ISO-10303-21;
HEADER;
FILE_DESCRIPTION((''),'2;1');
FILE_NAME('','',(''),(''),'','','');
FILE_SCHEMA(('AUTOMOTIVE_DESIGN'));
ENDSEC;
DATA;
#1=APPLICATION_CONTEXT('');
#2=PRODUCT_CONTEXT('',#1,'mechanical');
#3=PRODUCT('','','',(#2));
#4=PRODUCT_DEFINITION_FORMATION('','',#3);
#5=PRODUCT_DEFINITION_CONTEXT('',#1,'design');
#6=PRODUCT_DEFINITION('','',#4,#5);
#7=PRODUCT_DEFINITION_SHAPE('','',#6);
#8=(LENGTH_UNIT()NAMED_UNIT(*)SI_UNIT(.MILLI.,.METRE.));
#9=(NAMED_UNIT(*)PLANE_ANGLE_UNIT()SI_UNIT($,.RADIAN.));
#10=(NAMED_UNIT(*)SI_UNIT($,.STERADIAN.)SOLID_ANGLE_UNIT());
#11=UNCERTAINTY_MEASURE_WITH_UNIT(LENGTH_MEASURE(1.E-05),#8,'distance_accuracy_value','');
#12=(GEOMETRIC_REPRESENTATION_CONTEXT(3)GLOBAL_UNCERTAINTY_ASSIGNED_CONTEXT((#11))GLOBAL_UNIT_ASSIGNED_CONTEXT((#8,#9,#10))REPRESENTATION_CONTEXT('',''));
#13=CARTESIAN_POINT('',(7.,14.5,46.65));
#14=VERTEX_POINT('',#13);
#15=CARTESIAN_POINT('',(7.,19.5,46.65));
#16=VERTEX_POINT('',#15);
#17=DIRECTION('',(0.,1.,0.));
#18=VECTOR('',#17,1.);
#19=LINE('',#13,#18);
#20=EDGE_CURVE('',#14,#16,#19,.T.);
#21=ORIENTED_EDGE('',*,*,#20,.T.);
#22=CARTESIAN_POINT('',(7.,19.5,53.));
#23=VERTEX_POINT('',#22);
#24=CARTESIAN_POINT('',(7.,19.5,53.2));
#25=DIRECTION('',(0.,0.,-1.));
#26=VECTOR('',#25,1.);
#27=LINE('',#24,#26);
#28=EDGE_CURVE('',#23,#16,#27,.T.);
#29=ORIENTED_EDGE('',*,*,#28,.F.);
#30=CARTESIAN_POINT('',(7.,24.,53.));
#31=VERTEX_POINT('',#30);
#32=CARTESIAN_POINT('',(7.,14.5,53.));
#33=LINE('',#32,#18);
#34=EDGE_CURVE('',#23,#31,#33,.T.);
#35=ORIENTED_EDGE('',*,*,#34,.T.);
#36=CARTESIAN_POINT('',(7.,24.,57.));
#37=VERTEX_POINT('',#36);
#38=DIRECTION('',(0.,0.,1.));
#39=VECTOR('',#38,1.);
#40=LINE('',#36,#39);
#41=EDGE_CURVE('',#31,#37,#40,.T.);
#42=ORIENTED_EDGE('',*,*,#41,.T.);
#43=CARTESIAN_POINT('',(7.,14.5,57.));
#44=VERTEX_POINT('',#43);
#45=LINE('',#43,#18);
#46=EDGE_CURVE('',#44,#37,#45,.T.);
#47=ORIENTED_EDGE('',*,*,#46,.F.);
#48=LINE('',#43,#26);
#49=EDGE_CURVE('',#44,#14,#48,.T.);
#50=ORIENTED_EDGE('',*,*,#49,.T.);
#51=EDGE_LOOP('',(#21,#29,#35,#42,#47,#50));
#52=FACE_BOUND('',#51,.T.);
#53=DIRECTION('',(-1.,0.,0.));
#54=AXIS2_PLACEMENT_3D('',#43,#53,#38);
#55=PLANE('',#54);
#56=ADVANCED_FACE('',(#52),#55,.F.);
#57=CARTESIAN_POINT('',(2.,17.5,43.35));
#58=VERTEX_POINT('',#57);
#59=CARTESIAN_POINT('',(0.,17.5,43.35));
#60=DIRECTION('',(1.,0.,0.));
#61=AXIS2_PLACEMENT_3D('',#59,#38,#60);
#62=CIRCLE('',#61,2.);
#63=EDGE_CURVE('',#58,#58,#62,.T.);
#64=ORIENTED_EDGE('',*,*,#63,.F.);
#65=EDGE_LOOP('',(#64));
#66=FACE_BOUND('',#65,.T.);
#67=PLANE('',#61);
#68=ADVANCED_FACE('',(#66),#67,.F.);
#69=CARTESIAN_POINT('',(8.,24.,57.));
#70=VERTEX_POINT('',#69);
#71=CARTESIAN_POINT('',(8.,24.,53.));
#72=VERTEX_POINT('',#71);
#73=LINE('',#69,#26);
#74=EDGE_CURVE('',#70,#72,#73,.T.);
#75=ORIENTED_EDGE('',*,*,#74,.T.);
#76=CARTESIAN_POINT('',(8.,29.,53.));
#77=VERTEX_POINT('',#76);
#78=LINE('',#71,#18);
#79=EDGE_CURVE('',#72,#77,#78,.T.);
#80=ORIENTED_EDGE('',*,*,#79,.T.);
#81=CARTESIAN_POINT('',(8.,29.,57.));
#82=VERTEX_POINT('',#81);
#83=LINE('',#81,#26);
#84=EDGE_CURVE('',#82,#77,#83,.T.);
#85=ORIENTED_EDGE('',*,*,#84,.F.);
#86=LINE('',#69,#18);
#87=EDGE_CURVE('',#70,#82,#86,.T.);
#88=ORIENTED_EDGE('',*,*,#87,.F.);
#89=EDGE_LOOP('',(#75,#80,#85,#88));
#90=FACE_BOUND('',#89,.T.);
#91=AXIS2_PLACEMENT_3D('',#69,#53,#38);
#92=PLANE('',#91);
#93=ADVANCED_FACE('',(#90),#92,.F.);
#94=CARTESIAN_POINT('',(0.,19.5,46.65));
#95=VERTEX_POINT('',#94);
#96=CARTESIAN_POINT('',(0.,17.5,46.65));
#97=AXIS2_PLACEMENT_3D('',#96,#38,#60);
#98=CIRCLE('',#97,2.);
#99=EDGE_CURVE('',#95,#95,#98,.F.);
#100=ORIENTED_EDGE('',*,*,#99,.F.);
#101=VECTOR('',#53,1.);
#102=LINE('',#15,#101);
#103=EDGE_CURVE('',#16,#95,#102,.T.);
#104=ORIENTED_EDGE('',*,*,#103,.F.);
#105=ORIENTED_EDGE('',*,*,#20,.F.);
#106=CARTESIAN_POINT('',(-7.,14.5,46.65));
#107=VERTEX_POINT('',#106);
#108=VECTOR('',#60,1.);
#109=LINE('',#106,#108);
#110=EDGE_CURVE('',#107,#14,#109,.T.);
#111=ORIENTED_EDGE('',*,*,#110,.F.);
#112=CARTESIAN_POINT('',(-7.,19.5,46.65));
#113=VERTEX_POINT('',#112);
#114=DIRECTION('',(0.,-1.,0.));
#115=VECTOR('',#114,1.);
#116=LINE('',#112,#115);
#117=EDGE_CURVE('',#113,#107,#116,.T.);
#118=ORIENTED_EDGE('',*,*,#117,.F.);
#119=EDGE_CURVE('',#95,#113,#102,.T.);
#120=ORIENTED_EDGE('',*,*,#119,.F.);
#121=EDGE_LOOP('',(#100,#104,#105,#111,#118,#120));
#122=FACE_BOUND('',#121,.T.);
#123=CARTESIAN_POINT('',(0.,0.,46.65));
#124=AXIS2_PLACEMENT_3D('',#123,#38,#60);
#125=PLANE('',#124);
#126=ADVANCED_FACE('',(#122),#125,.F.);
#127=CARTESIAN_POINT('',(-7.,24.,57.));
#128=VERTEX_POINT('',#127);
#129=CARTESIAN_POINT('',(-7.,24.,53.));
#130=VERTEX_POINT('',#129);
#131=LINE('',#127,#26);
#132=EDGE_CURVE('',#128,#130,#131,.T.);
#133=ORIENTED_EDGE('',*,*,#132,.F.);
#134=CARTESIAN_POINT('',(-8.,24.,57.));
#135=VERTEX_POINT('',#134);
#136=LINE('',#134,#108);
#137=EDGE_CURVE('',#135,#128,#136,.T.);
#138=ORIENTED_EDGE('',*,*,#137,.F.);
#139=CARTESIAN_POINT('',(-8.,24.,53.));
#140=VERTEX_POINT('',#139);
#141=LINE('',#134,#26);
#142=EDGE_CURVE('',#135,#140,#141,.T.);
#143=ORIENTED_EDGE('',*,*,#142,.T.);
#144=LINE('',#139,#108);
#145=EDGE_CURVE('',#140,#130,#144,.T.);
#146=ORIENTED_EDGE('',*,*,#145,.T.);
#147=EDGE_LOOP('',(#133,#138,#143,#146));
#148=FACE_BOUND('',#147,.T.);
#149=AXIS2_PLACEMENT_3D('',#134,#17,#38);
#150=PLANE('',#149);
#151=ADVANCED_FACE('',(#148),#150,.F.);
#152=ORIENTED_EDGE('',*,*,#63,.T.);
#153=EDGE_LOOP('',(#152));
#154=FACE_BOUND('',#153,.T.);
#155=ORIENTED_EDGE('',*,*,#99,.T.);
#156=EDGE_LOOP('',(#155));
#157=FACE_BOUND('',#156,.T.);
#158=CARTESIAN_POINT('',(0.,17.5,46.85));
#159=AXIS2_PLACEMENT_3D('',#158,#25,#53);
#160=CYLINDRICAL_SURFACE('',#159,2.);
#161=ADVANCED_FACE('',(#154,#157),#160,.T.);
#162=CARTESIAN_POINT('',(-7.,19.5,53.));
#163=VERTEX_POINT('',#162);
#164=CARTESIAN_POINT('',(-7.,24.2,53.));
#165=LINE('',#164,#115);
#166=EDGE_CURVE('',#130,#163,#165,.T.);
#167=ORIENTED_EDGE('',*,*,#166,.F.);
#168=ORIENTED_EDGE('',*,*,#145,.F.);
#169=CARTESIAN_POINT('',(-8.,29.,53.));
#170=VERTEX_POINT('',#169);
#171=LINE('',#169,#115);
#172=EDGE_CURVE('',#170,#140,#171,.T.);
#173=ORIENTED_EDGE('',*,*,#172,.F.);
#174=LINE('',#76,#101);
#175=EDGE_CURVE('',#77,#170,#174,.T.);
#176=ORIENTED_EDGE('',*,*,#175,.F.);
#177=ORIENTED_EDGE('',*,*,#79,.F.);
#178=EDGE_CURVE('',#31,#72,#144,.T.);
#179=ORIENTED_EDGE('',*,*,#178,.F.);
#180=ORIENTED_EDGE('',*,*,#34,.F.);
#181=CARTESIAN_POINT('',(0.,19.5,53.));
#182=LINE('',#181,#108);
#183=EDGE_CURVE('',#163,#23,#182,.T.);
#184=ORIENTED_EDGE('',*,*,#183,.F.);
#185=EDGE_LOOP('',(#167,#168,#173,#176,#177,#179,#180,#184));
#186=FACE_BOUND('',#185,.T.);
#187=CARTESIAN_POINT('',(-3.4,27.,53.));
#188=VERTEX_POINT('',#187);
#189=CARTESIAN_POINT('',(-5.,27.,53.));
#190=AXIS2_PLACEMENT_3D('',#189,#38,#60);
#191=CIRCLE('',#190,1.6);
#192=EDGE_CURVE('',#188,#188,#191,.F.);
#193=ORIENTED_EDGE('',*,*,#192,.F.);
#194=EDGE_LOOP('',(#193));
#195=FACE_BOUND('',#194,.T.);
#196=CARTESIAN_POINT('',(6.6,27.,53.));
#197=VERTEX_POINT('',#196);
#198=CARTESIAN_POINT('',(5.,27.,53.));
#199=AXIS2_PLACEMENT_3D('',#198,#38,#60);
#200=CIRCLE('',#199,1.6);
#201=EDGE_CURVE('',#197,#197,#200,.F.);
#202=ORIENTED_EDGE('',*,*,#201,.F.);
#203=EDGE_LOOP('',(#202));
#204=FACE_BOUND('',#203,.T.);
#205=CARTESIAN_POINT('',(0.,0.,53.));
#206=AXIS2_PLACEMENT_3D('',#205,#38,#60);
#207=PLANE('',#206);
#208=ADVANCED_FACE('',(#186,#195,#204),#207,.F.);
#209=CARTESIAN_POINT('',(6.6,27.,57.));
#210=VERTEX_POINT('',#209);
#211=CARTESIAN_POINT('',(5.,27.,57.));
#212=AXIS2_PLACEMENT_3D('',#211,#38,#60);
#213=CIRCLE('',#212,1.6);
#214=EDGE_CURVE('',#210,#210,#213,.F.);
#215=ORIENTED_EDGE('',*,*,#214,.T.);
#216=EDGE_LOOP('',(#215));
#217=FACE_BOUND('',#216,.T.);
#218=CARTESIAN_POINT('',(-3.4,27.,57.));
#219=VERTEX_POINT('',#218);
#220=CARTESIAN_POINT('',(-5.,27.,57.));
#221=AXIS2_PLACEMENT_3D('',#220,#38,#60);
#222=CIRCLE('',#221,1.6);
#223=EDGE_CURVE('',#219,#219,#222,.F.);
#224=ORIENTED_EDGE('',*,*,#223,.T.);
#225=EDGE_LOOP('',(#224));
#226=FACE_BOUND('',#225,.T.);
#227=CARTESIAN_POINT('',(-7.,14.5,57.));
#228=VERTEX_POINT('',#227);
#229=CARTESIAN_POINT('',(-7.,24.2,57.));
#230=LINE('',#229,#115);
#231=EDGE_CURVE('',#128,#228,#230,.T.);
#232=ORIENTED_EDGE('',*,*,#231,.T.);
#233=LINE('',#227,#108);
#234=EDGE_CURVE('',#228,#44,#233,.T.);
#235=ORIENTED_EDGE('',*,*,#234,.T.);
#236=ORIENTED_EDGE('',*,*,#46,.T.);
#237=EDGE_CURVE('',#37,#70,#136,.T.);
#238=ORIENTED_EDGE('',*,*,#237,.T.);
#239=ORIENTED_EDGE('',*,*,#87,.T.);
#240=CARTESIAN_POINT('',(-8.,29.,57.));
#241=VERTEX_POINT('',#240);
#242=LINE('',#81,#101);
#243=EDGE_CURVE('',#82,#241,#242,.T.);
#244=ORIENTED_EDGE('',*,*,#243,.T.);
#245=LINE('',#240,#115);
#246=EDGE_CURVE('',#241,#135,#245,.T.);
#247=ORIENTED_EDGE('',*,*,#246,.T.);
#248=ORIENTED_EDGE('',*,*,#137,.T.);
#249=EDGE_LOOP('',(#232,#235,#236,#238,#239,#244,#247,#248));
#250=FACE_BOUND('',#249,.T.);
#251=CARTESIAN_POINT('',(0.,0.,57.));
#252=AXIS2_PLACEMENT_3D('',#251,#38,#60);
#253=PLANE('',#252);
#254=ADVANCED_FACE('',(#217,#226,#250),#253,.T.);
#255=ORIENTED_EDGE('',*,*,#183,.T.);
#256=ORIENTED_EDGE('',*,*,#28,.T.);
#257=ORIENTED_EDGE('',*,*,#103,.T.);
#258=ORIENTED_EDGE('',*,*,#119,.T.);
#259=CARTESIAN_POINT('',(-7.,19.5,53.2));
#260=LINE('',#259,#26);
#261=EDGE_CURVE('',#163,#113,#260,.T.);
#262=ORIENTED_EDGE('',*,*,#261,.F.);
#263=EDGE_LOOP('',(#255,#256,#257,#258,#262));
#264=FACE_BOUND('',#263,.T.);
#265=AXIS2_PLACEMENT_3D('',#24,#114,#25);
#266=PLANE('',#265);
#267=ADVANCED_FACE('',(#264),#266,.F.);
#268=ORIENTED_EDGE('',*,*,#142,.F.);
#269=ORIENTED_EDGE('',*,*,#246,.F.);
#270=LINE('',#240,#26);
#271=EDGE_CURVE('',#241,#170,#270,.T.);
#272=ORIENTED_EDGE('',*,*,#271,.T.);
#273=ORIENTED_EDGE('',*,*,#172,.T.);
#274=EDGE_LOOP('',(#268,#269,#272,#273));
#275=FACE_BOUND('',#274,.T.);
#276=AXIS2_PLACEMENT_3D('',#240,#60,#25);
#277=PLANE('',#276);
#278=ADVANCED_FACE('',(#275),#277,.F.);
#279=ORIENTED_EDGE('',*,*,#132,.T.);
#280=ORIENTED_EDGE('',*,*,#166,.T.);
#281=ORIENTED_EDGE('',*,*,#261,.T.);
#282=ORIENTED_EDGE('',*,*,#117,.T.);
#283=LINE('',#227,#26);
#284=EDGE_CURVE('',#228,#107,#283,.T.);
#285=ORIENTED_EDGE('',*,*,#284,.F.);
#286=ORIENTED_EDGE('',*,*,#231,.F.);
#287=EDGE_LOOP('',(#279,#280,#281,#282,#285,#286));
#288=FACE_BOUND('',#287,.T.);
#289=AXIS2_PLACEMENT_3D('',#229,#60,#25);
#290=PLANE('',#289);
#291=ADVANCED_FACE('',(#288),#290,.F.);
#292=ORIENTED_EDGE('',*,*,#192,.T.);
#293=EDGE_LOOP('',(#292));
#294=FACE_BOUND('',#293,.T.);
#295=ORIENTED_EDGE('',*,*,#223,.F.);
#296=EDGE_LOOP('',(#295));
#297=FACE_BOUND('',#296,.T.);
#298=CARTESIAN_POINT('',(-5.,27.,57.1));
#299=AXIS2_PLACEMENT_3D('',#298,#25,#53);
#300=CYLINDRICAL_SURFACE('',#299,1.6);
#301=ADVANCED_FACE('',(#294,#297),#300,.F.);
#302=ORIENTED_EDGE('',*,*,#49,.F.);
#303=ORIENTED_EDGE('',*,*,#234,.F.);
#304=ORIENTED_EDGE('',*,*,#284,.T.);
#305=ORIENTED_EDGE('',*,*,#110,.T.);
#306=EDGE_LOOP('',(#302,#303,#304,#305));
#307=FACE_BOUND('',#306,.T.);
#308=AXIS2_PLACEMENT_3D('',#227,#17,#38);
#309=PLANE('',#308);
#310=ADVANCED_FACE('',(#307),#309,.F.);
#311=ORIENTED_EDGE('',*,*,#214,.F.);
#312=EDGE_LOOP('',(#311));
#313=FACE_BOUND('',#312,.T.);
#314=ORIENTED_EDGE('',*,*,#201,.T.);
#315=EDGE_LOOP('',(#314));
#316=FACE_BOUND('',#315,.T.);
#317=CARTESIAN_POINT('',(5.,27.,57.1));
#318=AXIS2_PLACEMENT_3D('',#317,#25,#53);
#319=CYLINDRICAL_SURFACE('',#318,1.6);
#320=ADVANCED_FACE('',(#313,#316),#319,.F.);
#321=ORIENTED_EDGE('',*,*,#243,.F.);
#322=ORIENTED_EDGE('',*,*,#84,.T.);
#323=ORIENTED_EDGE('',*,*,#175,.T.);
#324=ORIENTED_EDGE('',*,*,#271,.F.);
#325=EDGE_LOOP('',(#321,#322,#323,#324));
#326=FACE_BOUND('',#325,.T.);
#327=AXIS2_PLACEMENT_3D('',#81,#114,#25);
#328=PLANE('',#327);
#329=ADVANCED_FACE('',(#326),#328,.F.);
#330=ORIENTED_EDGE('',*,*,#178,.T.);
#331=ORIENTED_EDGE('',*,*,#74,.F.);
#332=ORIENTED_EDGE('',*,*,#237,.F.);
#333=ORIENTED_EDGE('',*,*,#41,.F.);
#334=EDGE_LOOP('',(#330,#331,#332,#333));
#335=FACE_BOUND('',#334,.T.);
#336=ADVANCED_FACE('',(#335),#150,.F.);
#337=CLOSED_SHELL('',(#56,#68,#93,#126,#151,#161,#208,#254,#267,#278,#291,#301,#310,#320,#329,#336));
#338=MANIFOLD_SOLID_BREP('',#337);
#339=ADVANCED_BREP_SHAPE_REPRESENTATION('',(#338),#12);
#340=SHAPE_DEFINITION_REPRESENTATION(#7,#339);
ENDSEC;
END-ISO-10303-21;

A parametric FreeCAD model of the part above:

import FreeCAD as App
import Part
import Sketcher

V = App.Vector
Q = App.Units.Quantity

doc = App.newDocument("Part")
params = doc.addObject("Spreadsheet::Sheet", "Params")
for row, (alias, value) in enumerate([
    ("sketch1_width", "16 mm"),
    ("sketch1_height", "5 mm"),
    ("pad1_length", "4 mm"),
    ("sketch2_width", "14 mm"),
    ("sketch2_height", "9.7 mm"),
    ("pad2_length", "4 mm"),
    ("sketch3_width", "14 mm"),
    ("sketch3_height", "5 mm"),
    ("pad3_length", "6.55 mm"),
    ("sketch4_diameter", "4 mm"),
    ("pad4_length", "3.5 mm"),
    ("sketch5_diameter", "3.2 mm"),
    ("pocket1_length", "4.2 mm"),
], start=1):
    params.set(f"A{row}", alias)
    params.set(f"B{row}", "=" + value)
    params.setAlias(f"B{row}", alias)

body = doc.addObject("PartDesign::Body", "Body")

# Sketch on XY plane
sketch1 = body.newObject("Sketcher::SketchObject", "Sketch")
sketch1.AttachmentSupport = (doc.getObject("XY_Plane"), [""])
sketch1.MapMode = "FlatFace"
sketch1.AttachmentOffset = App.Placement(V(0, 0, 53), App.Rotation())
sketch1.addGeometry([
    Part.LineSegment(V(-8, 29, 0), V(-8, 24, 0)),
    Part.LineSegment(V(-8, 24, 0), V(8, 24, 0)),
    Part.LineSegment(V(8, 24, 0), V(8, 29, 0)),
    Part.LineSegment(V(8, 29, 0), V(-8, 29, 0)),
], False)
sketch1.addConstraint([
    Sketcher.Constraint("Coincident", 0, 2, 1, 1),
    Sketcher.Constraint("Coincident", 1, 2, 2, 1),
    Sketcher.Constraint("Coincident", 2, 2, 3, 1),
    Sketcher.Constraint("Coincident", 3, 2, 0, 1),
    Sketcher.Constraint("Vertical", 0),
    Sketcher.Constraint("Horizontal", 1),
    Sketcher.Constraint("Vertical", 2),
    Sketcher.Constraint("Horizontal", 3),
    Sketcher.Constraint("DistanceX", 1, 1, 1, 2, Q("16 mm")),
    Sketcher.Constraint("DistanceY", 0, 2, 0, 1, Q("5 mm")),
    Sketcher.Constraint("DistanceX", 0, 2, -1, 1, Q("8 mm")),
    Sketcher.Constraint("DistanceY", -1, 1, 0, 2, Q("24 mm")),
])
sketch1.setExpression("Constraints[8]", "Params.sketch1_width")
sketch1.setExpression("Constraints[9]", "Params.sketch1_height")
pad1 = body.newObject("PartDesign::Pad", "Pad")
pad1.Profile = sketch1
pad1.setExpression("Length", "Params.pad1_length")

# Sketch on XY plane
sketch2 = body.newObject("Sketcher::SketchObject", "Sketch001")
sketch2.AttachmentSupport = (doc.getObject("XY_Plane"), [""])
sketch2.MapMode = "FlatFace"
sketch2.AttachmentOffset = App.Placement(V(0, 0, 53), App.Rotation())
sketch2.addGeometry([
    Part.LineSegment(V(-7, 24.2, 0), V(-7, 14.5, 0)),
    Part.LineSegment(V(-7, 14.5, 0), V(7, 14.5, 0)),
    Part.LineSegment(V(7, 14.5, 0), V(7, 24.2, 0)),
    Part.LineSegment(V(7, 24.2, 0), V(-7, 24.2, 0)),
], False)
sketch2.addConstraint([
    Sketcher.Constraint("Coincident", 0, 2, 1, 1),
    Sketcher.Constraint("Coincident", 1, 2, 2, 1),
    Sketcher.Constraint("Coincident", 2, 2, 3, 1),
    Sketcher.Constraint("Coincident", 3, 2, 0, 1),
    Sketcher.Constraint("Vertical", 0),
    Sketcher.Constraint("Horizontal", 1),
    Sketcher.Constraint("Vertical", 2),
    Sketcher.Constraint("Horizontal", 3),
    Sketcher.Constraint("DistanceX", 1, 1, 1, 2, Q("14 mm")),
    Sketcher.Constraint("DistanceY", 0, 2, 0, 1, Q("9.7 mm")),
    Sketcher.Constraint("DistanceX", 0, 2, -1, 1, Q("7 mm")),
    Sketcher.Constraint("DistanceY", -1, 1, 0, 2, Q("14.5 mm")),
])
sketch2.setExpression("Constraints[8]", "Params.sketch2_width")
sketch2.setExpression("Constraints[9]", "Params.sketch2_height")
pad2 = body.newObject("PartDesign::Pad", "Pad001")
pad2.Profile = sketch2
pad2.setExpression("Length", "Params.pad2_length")

# Sketch on XY plane
sketch3 = body.newObject("Sketcher::SketchObject", "Sketch002")
sketch3.AttachmentSupport = (doc.getObject("XY_Plane"), [""])
sketch3.MapMode = "FlatFace"
sketch3.AttachmentOffset = App.Placement(V(0, 0, 46.65), App.Rotation())
sketch3.addGeometry([
    Part.LineSegment(V(-7, 19.5, 0), V(-7, 14.5, 0)),
    Part.LineSegment(V(-7, 14.5, 0), V(7, 14.5, 0)),
    Part.LineSegment(V(7, 14.5, 0), V(7, 19.5, 0)),
    Part.LineSegment(V(7, 19.5, 0), V(-7, 19.5, 0)),
], False)
sketch3.addConstraint([
    Sketcher.Constraint("Coincident", 0, 2, 1, 1),
    Sketcher.Constraint("Coincident", 1, 2, 2, 1),
    Sketcher.Constraint("Coincident", 2, 2, 3, 1),
    Sketcher.Constraint("Coincident", 3, 2, 0, 1),
    Sketcher.Constraint("Vertical", 0),
    Sketcher.Constraint("Horizontal", 1),
    Sketcher.Constraint("Vertical", 2),
    Sketcher.Constraint("Horizontal", 3),
    Sketcher.Constraint("DistanceX", 1, 1, 1, 2, Q("14 mm")),
    Sketcher.Constraint("DistanceY", 0, 2, 0, 1, Q("5 mm")),
    Sketcher.Constraint("DistanceX", 0, 2, -1, 1, Q("7 mm")),
    Sketcher.Constraint("DistanceY", -1, 1, 0, 2, Q("14.5 mm")),
])
sketch3.setExpression("Constraints[8]", "Params.sketch3_width")
sketch3.setExpression("Constraints[9]", "Params.sketch3_height")
pad3 = body.newObject("PartDesign::Pad", "Pad002")
pad3.Profile = sketch3
pad3.setExpression("Length", "Params.pad3_length")

# Sketch on XY plane
sketch4 = body.newObject("Sketcher::SketchObject", "Sketch003")
sketch4.AttachmentSupport = (doc.getObject("XY_Plane"), [""])
sketch4.MapMode = "FlatFace"
sketch4.AttachmentOffset = App.Placement(V(0, 0, 43.35), App.Rotation())
sketch4.addGeometry(Part.Circle(V(0, 17.5, 0), V(0, 0, 1), 2), False)
sketch4.addConstraint([
    Sketcher.Constraint("PointOnObject", 0, 3, -2),
    Sketcher.Constraint("Diameter", 0, Q("4 mm")),
    Sketcher.Constraint("DistanceY", -1, 1, 0, 3, Q("17.5 mm")),
])
sketch4.setExpression("Constraints[1]", "Params.sketch4_diameter")
pad4 = body.newObject("PartDesign::Pad", "Pad003")
pad4.Profile = sketch4
pad4.setExpression("Length", "Params.pad4_length")

# Sketch on XY plane
sketch5 = body.newObject("Sketcher::SketchObject", "Sketch004")
sketch5.AttachmentSupport = (doc.getObject("XY_Plane"), [""])
sketch5.MapMode = "FlatFace"
sketch5.AttachmentOffset = App.Placement(V(0, 0, 52.9), App.Rotation())
sketch5.addGeometry([
    Part.Circle(V(-5, 27, 0), V(0, 0, 1), 1.6),
    Part.Circle(V(5, 27, 0), V(0, 0, 1), 1.6),
], False)
sketch5.addConstraint([
    Sketcher.Constraint("Equal", 0, 1),
    Sketcher.Constraint("Symmetric", 0, 3, 1, 3, -2),
    Sketcher.Constraint("Diameter", 0, Q("3.2 mm")),
    Sketcher.Constraint("DistanceX", 0, 3, -1, 1, Q("5 mm")),
    Sketcher.Constraint("DistanceY", -1, 1, 0, 3, Q("27 mm")),
])
sketch5.setExpression("Constraints[2]", "Params.sketch5_diameter")
pocket1 = body.newObject("PartDesign::Pocket", "Pocket")
pocket1.Profile = sketch5
pocket1.setExpression("Length", "Params.pocket1_length")
pocket1.Reversed = True

doc.recompute()
